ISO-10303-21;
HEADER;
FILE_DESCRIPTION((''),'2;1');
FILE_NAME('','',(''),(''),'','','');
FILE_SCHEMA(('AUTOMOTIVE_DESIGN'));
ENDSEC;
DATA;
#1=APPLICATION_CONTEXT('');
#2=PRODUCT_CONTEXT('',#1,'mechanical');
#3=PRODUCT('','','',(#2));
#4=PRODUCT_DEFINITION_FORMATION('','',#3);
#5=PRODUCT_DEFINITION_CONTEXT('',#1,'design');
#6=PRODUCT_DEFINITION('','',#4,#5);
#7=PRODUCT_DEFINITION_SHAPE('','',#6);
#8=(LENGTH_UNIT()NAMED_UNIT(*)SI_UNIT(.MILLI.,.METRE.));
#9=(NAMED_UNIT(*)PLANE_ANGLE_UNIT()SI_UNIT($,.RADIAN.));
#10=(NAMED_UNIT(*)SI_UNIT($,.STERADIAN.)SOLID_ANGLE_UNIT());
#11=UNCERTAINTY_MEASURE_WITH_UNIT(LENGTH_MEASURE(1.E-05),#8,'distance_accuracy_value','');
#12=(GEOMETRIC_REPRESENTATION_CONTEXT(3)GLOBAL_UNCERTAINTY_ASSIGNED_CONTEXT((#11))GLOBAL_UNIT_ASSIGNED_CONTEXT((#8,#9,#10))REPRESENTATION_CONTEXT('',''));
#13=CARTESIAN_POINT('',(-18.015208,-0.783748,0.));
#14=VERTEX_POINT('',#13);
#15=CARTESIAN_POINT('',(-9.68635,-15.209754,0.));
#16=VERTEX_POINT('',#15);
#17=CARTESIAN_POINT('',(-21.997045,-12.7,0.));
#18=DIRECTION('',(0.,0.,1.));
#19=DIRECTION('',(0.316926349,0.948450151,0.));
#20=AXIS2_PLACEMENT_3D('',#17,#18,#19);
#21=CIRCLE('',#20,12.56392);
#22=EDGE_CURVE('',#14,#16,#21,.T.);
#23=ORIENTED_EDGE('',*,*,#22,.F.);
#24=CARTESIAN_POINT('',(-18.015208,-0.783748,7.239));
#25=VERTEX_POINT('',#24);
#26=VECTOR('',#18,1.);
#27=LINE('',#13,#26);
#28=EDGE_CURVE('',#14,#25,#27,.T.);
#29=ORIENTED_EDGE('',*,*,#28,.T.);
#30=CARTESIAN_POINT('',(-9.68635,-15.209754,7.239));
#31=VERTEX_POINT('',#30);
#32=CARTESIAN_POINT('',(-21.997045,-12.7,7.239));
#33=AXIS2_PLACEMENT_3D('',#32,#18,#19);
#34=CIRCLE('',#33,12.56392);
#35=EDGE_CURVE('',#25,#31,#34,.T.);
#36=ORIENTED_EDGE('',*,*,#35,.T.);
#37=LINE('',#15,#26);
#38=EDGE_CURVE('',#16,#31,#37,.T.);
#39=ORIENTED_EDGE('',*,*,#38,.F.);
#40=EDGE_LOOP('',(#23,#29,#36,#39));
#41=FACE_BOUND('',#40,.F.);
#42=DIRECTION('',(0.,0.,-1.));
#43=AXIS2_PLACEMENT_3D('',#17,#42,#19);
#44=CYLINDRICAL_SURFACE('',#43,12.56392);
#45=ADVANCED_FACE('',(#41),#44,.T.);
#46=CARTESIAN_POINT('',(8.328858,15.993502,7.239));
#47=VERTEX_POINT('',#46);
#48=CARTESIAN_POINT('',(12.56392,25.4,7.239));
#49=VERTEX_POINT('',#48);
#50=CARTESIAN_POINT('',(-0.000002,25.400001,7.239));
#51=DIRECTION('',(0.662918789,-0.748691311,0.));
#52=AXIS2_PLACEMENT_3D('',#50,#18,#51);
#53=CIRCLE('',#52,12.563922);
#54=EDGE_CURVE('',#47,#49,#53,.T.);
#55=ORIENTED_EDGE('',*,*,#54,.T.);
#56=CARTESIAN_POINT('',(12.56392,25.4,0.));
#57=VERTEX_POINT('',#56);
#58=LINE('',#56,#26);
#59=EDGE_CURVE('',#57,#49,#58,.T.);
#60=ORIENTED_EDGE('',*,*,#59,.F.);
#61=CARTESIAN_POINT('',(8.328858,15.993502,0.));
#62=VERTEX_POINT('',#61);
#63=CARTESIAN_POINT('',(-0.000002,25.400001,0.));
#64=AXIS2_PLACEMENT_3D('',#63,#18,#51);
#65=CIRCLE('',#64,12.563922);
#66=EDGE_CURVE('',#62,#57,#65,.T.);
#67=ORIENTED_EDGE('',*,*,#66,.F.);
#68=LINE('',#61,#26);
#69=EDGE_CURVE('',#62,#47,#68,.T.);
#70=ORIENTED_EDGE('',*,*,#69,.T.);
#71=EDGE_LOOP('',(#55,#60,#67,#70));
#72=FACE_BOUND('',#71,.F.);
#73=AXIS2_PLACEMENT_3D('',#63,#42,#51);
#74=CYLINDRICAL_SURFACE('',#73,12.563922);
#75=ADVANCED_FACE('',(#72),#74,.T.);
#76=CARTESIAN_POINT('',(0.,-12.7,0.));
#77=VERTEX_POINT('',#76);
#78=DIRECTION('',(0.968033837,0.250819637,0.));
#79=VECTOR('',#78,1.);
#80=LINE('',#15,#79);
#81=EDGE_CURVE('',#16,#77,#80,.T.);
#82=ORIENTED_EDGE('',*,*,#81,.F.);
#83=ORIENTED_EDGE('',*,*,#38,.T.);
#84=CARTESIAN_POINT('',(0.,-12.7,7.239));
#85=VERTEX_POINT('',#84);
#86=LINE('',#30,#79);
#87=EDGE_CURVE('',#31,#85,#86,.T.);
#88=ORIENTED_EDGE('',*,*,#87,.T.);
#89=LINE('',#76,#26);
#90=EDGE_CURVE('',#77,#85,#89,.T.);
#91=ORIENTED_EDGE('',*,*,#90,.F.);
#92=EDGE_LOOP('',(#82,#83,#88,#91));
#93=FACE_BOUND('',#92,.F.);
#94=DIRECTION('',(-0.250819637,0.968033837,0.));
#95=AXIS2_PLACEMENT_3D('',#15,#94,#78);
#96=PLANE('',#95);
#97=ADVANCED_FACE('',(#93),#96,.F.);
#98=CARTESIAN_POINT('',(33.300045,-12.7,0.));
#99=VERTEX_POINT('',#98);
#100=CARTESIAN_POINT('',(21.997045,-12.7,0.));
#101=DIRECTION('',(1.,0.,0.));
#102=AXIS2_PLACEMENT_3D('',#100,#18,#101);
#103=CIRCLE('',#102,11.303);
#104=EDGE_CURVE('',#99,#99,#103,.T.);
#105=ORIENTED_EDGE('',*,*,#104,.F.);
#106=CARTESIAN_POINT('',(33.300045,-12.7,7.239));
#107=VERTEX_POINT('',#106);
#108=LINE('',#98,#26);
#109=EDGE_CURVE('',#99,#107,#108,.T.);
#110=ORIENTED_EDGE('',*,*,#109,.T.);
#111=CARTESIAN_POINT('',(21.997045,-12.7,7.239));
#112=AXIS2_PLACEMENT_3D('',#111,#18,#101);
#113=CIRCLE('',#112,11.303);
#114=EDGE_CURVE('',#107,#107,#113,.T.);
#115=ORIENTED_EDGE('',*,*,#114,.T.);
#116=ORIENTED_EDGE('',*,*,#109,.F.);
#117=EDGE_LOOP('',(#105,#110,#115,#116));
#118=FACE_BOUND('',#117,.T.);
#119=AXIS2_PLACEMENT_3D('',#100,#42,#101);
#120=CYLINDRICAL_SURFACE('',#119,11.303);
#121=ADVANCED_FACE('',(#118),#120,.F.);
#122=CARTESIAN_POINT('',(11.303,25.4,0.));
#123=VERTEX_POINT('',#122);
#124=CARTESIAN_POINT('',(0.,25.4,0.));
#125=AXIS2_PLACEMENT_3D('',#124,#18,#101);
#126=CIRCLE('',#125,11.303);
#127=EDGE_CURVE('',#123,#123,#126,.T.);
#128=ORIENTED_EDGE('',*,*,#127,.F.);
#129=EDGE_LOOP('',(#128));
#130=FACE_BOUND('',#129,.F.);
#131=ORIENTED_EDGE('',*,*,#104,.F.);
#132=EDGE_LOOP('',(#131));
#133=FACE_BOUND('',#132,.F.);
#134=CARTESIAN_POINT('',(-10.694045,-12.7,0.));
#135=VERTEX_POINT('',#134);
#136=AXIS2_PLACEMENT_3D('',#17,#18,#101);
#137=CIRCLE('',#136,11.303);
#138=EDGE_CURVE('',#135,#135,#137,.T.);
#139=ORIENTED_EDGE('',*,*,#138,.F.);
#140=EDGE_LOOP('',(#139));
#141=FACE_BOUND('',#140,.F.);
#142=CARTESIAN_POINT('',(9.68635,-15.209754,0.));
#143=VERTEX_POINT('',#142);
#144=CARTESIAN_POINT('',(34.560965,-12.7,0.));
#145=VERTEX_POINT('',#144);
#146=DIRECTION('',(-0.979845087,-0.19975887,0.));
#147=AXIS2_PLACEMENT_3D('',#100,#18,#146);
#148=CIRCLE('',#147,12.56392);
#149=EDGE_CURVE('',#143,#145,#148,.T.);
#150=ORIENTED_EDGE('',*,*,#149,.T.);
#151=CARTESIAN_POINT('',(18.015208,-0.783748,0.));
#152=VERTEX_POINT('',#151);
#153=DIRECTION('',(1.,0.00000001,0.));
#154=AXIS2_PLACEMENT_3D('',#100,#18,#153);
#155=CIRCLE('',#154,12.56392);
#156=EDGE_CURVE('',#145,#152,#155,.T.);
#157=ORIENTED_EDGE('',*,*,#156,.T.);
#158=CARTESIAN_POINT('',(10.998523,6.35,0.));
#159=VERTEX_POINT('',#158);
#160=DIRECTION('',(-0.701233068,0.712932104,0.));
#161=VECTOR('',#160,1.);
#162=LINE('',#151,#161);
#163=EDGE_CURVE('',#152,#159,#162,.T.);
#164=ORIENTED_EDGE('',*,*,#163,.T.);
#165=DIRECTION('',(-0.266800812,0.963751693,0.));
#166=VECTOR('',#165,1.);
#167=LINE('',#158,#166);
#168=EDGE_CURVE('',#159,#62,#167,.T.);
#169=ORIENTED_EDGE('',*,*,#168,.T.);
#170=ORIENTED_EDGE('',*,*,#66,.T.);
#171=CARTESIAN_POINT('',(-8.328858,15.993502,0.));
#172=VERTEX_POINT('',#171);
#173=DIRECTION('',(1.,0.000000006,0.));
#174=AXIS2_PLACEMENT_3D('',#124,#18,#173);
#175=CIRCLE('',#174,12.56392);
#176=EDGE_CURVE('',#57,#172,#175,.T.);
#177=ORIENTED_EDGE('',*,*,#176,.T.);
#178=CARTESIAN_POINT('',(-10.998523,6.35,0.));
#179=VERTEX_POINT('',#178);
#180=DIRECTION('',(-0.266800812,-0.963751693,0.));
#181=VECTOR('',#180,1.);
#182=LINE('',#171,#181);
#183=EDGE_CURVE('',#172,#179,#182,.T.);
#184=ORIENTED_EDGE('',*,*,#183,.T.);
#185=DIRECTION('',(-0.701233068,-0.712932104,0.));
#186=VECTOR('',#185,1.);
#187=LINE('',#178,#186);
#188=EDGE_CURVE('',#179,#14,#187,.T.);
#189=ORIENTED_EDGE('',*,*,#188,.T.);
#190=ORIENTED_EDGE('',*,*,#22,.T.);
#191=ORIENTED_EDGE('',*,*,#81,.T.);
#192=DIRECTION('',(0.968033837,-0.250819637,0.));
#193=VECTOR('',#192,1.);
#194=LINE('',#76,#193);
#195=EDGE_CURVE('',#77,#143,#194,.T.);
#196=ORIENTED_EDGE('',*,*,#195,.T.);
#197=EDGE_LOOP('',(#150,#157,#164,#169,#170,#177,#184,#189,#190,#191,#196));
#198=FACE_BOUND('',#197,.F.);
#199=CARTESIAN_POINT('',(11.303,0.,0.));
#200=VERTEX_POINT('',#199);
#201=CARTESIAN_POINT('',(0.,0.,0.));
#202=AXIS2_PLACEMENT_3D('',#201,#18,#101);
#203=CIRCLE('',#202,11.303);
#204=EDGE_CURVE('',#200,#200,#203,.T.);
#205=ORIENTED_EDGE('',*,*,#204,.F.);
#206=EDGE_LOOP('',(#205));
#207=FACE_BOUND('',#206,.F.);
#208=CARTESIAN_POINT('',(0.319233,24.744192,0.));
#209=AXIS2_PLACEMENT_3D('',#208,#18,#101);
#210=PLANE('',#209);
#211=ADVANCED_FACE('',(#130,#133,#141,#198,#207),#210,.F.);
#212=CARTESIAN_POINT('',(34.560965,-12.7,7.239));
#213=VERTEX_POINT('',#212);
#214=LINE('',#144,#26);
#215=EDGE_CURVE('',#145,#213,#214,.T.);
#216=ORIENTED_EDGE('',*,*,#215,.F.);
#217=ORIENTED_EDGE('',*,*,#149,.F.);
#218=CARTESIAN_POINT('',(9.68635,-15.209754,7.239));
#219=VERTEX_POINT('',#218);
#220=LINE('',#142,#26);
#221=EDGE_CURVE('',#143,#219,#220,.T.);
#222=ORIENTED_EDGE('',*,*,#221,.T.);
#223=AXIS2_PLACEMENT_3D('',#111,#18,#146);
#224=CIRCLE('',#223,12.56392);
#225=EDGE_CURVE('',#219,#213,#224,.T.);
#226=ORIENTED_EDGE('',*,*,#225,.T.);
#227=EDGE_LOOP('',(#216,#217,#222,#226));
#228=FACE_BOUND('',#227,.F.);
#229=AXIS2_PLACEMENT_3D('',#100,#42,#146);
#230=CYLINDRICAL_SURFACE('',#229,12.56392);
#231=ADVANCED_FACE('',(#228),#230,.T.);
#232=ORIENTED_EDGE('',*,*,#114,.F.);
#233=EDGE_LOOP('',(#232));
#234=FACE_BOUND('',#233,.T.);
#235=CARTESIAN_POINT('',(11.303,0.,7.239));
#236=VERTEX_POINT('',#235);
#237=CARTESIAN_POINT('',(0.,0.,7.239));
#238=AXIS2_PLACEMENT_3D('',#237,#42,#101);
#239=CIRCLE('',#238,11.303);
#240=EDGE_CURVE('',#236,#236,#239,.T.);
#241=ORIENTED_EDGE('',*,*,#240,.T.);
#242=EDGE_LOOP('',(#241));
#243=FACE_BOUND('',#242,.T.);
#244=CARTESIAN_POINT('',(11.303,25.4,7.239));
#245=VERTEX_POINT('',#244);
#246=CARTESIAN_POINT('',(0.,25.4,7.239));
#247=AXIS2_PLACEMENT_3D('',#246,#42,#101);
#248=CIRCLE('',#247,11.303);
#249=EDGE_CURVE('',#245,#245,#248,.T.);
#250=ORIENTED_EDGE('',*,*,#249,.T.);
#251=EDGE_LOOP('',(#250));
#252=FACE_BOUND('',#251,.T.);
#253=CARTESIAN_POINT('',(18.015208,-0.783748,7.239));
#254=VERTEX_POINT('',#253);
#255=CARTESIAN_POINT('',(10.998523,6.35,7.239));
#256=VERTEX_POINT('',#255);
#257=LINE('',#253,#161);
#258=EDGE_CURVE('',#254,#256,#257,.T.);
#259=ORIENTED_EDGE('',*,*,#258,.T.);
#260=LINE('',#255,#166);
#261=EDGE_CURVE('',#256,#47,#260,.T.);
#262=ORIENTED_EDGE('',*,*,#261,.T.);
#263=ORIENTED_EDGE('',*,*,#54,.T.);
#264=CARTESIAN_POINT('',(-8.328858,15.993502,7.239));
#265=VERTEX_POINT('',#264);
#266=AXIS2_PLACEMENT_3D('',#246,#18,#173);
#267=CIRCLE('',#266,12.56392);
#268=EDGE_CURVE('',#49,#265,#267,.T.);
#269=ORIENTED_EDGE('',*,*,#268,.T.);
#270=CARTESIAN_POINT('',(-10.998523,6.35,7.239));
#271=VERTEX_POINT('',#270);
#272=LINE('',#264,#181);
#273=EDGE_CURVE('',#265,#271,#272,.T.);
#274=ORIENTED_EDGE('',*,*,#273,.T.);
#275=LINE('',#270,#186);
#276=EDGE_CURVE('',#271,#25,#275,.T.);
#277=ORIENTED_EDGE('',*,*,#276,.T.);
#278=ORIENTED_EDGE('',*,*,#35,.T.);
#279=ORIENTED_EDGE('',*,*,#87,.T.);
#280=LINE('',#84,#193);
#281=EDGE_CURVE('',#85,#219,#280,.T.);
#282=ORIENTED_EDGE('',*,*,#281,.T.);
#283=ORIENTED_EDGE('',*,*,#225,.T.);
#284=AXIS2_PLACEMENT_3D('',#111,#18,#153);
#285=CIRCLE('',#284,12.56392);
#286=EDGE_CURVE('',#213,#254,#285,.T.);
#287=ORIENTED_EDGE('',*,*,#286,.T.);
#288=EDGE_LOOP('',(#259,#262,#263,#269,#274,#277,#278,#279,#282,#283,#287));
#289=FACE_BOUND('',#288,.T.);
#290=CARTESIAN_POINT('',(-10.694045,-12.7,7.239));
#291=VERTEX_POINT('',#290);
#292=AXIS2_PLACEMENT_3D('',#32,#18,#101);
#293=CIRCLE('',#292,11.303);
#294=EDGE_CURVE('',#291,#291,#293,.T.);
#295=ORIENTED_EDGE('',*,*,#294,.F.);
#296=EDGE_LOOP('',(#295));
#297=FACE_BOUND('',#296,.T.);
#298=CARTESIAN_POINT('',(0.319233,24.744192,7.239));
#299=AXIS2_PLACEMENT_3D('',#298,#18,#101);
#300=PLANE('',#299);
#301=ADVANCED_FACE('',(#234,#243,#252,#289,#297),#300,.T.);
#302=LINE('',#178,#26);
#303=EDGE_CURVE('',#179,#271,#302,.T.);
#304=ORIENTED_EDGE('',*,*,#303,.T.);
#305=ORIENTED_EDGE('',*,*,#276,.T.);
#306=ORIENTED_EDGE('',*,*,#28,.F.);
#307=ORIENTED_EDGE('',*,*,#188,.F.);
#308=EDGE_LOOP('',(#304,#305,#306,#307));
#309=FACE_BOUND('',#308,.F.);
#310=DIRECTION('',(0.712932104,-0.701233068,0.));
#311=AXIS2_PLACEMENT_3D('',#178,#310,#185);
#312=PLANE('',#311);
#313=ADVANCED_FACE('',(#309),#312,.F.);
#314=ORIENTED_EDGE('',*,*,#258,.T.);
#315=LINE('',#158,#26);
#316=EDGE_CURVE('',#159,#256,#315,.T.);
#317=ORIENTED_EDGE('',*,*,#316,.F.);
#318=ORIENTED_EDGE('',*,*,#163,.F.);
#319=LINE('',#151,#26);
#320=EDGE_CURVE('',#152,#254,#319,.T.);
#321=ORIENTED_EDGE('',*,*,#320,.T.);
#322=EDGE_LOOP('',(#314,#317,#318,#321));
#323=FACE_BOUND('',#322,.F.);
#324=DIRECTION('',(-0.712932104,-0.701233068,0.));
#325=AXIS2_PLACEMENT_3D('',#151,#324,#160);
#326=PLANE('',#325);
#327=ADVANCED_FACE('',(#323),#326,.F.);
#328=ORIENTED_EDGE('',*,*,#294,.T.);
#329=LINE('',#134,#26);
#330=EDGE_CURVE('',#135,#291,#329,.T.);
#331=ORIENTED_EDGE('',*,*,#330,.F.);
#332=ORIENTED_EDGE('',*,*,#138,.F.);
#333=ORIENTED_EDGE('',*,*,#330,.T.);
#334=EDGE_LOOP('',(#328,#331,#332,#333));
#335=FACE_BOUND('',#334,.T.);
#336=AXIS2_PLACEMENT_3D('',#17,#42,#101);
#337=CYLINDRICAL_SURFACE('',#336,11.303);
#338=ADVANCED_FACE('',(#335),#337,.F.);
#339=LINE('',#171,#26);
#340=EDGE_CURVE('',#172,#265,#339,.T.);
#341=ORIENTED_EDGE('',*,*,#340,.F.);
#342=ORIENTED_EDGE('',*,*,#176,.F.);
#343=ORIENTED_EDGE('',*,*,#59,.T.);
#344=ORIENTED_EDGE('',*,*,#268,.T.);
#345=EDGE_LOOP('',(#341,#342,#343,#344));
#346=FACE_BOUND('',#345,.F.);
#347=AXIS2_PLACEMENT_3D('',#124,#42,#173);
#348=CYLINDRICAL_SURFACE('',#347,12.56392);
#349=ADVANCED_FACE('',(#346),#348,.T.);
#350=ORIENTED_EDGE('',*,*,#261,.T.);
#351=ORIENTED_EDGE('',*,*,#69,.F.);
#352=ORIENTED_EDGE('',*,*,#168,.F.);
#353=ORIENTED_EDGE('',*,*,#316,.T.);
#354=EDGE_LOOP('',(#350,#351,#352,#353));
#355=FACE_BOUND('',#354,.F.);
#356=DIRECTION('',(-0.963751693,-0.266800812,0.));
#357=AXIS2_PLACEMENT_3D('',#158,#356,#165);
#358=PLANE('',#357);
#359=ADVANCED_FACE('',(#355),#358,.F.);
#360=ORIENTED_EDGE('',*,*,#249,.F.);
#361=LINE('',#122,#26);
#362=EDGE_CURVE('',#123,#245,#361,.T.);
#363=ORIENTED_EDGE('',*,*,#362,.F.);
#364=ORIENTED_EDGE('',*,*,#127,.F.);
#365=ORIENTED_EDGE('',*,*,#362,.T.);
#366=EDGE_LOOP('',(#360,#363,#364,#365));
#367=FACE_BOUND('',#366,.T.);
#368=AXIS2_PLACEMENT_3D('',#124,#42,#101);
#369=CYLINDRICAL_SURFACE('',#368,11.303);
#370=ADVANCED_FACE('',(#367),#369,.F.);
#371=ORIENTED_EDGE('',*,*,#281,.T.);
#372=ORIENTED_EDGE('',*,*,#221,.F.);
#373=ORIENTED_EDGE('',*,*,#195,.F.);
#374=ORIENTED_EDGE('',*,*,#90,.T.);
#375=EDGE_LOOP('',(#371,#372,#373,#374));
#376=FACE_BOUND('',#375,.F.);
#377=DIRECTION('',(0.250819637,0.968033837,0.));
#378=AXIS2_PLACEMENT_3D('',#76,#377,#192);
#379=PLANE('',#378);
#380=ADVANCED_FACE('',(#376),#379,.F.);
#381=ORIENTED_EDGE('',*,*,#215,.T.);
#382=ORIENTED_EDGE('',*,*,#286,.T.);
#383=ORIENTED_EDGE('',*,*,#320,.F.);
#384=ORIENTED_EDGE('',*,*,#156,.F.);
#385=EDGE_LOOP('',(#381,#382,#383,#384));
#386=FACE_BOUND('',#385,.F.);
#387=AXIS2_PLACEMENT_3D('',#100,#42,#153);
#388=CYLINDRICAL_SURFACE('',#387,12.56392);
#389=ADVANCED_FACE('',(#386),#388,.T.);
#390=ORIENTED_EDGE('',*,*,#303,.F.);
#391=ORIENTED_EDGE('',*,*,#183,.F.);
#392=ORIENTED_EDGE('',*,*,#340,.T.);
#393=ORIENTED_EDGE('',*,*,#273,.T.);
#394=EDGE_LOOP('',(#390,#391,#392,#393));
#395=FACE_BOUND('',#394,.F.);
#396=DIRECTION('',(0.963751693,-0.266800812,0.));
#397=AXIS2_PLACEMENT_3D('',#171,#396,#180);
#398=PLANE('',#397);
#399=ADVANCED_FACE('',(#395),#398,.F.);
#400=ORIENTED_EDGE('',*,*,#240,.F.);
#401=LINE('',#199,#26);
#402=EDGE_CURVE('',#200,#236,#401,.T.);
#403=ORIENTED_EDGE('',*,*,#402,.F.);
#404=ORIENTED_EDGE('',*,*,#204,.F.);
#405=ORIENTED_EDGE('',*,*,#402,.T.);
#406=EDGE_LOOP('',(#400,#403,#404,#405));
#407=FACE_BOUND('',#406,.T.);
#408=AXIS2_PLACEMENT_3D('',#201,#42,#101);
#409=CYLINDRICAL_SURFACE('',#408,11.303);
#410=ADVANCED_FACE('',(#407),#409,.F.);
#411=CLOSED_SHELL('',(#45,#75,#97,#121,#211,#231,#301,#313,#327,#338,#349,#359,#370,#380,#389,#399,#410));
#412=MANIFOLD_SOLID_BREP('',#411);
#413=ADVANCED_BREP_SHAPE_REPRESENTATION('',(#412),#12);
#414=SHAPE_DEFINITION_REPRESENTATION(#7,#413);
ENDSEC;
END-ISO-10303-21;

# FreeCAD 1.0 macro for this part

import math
import FreeCAD as App
import Part
import Sketcher

V = App.Vector
Q = App.Units.Quantity

doc = App.newDocument("Part")
body = doc.addObject("PartDesign::Body", "Body")

sketch1 = doc.addObject("Sketcher::SketchObject", "Sketch")
body.addObject(sketch1)
sketch1.AttachmentSupport = (doc.XY_Plane, [""])
sketch1.MapMode = "FlatFace"
sketch1.addGeometry([
    Part.ArcOfCircle(Part.Circle(V(-0.000002, 25.400001, 0), V(0, 0, 1), 12.563922), math.radians(-48.477142), math.radians(-0.000005)),
    Part.ArcOfCircle(Part.Circle(V(0, 25.4, 0), V(0, 0, 1), 12.56392), math.radians(0), math.radians(228.477144)),
    Part.LineSegment(V(-8.328858, 15.993502, 0), V(-10.998523, 6.35, 0)),
    Part.LineSegment(V(-10.998523, 6.35, 0), V(-18.015208, -0.783748, 0)),
    Part.ArcOfCircle(Part.Circle(V(-21.997045, -12.7, 0), V(0, 0, 1), 12.56392), math.radians(71.522855), math.radians(348.477142)),
    Part.LineSegment(V(-9.68635, -15.209754, 0), V(0, -12.7, 0)),
    Part.LineSegment(V(0, -12.7, 0), V(9.68635, -15.209754, 0)),
    Part.ArcOfCircle(Part.Circle(V(21.997045, -12.7, 0), V(0, 0, 1), 12.56392), math.radians(-168.477141), math.radians(-0.000002)),
    Part.ArcOfCircle(Part.Circle(V(21.997045, -12.7, 0), V(0, 0, 1), 12.56392), math.radians(0.000001), math.radians(108.477143)),
    Part.LineSegment(V(18.015208, -0.783748, 0), V(10.998523, 6.35, 0)),
    Part.LineSegment(V(10.998523, 6.35, 0), V(8.328858, 15.993502, 0)),
    Part.Circle(V(21.997045, -12.7, 0), V(0, 0, 1), 11.303),
    Part.Circle(V(-21.997045, -12.7, 0), V(0, 0, 1), 11.303),
], False)
sketch1.addConstraint([
    Sketcher.Constraint("Tangent", 0, 2, 1, 1),
    Sketcher.Constraint("Coincident", 1, 2, 2, 1),
    Sketcher.Constraint("Coincident", 2, 2, 3, 1),
    Sketcher.Constraint("Coincident", 3, 2, 4, 1),
    Sketcher.Constraint("Coincident", 4, 2, 5, 1),
    Sketcher.Constraint("Coincident", 5, 2, 6, 1),
    Sketcher.Constraint("Coincident", 6, 2, 7, 1),
    Sketcher.Constraint("Tangent", 7, 2, 8, 1),
    Sketcher.Constraint("Coincident", 8, 2, 9, 1),
    Sketcher.Constraint("Coincident", 9, 2, 10, 1),
    Sketcher.Constraint("Coincident", 10, 2, 0, 1),
    Sketcher.Constraint("Coincident", 11, 3, 7, 3),
    Sketcher.Constraint("Coincident", 12, 3, 4, 3),
    Sketcher.Constraint("Equal", 1, 4),
    Sketcher.Constraint("Equal", 4, 7),
    Sketcher.Constraint("Equal", 7, 8),
    Sketcher.Constraint("Equal", 11, 12),
    Sketcher.Constraint("Symmetric", 4, 3, 7, 3, -2),
    Sketcher.Constraint("Symmetric", 2, 2, 9, 2, -2),
    Sketcher.Constraint("Symmetric", 1, 2, 10, 2, -2),
    Sketcher.Constraint("PointOnObject", 0, 3, -2),
    Sketcher.Constraint("PointOnObject", 5, 2, -2),
    Sketcher.Constraint("Horizontal", 1, 3, 0, 2),
    Sketcher.Constraint("Horizontal", 12, 3, 5, 2),
    Sketcher.Constraint("Horizontal", 4, 2, 6, 2),
    Sketcher.Constraint("Horizontal", 5, 2, 7, 2),
    Sketcher.Constraint("Horizontal", 3, 2, 8, 2),
    Sketcher.Constraint("Equal", 2, 3),
    Sketcher.Constraint("Equal", 3, 5),
    Sketcher.Constraint("Diameter", 11, Q("0.89 in")),
    Sketcher.Constraint("DistanceY", -1, 1, 0, 3, Q("1 in")),
    Sketcher.Constraint("DistanceY", 4, 3, -1, 1, Q("0.5 in")),
    Sketcher.Constraint("DistanceY", -1, 1, 2, 2, Q("0.25 in")),
    Sketcher.Constraint("Radius", 0, Q("12.563922 mm")),
    Sketcher.Constraint("DistanceY", -1, 1, 1, 2, Q("15.993502 mm")),
    Sketcher.Constraint("DistanceX", 4, 2, 6, 2, Q("19.3727 mm")),
    Sketcher.Constraint("Distance", 2, Q("10.00621 mm")),
])
pad1 = doc.addObject("PartDesign::Pad", "Pad")
body.addObject(pad1)
pad1.Profile = sketch1
pad1.Length = Q("0.285 in")

sketch2 = doc.addObject("Sketcher::SketchObject", "Sketch001")
body.addObject(sketch2)
sketch2.AttachmentSupport = (doc.XY_Plane, [""])
sketch2.MapMode = "FlatFace"
sketch2.addGeometry([
    Part.Circle(V(21.997045, -12.7, 0), V(0, 0, 1), 11.303),
    Part.Circle(V(0, 0, 0), V(0, 0, 1), 11.303),
    Part.Circle(V(0, 25.4, 0), V(0, 0, 1), 11.303),
    Part.Circle(V(-21.997045, -12.7, 0), V(0, 0, 1), 11.303),
], False)
sketch2.addConstraint([
    Sketcher.Constraint("Coincident", 1, 3, -1, 1),
    Sketcher.Constraint("Equal", 0, 1),
    Sketcher.Constraint("Equal", 1, 2),
    Sketcher.Constraint("Equal", 2, 3),
    Sketcher.Constraint("Symmetric", 0, 3, 3, 3, -2),
    Sketcher.Constraint("PointOnObject", 2, 3, -2),
    Sketcher.Constraint("Diameter", 0, Q("0.89 in")),
    Sketcher.Constraint("DistanceY", -1, 1, 2, 3, Q("1 in")),
    Sketcher.Constraint("DistanceY", 0, 3, -1, 1, Q("0.5 in")),
    Sketcher.Constraint("DistanceX", 3, 3, 0, 3, Q("43.99409 mm")),
])
pocket1 = doc.addObject("PartDesign::Pocket", "Pocket")
body.addObject(pocket1)
pocket1.Profile = sketch2
pocket1.Length = Q("1 in")
pocket1.Reversed = True

doc.recompute()
